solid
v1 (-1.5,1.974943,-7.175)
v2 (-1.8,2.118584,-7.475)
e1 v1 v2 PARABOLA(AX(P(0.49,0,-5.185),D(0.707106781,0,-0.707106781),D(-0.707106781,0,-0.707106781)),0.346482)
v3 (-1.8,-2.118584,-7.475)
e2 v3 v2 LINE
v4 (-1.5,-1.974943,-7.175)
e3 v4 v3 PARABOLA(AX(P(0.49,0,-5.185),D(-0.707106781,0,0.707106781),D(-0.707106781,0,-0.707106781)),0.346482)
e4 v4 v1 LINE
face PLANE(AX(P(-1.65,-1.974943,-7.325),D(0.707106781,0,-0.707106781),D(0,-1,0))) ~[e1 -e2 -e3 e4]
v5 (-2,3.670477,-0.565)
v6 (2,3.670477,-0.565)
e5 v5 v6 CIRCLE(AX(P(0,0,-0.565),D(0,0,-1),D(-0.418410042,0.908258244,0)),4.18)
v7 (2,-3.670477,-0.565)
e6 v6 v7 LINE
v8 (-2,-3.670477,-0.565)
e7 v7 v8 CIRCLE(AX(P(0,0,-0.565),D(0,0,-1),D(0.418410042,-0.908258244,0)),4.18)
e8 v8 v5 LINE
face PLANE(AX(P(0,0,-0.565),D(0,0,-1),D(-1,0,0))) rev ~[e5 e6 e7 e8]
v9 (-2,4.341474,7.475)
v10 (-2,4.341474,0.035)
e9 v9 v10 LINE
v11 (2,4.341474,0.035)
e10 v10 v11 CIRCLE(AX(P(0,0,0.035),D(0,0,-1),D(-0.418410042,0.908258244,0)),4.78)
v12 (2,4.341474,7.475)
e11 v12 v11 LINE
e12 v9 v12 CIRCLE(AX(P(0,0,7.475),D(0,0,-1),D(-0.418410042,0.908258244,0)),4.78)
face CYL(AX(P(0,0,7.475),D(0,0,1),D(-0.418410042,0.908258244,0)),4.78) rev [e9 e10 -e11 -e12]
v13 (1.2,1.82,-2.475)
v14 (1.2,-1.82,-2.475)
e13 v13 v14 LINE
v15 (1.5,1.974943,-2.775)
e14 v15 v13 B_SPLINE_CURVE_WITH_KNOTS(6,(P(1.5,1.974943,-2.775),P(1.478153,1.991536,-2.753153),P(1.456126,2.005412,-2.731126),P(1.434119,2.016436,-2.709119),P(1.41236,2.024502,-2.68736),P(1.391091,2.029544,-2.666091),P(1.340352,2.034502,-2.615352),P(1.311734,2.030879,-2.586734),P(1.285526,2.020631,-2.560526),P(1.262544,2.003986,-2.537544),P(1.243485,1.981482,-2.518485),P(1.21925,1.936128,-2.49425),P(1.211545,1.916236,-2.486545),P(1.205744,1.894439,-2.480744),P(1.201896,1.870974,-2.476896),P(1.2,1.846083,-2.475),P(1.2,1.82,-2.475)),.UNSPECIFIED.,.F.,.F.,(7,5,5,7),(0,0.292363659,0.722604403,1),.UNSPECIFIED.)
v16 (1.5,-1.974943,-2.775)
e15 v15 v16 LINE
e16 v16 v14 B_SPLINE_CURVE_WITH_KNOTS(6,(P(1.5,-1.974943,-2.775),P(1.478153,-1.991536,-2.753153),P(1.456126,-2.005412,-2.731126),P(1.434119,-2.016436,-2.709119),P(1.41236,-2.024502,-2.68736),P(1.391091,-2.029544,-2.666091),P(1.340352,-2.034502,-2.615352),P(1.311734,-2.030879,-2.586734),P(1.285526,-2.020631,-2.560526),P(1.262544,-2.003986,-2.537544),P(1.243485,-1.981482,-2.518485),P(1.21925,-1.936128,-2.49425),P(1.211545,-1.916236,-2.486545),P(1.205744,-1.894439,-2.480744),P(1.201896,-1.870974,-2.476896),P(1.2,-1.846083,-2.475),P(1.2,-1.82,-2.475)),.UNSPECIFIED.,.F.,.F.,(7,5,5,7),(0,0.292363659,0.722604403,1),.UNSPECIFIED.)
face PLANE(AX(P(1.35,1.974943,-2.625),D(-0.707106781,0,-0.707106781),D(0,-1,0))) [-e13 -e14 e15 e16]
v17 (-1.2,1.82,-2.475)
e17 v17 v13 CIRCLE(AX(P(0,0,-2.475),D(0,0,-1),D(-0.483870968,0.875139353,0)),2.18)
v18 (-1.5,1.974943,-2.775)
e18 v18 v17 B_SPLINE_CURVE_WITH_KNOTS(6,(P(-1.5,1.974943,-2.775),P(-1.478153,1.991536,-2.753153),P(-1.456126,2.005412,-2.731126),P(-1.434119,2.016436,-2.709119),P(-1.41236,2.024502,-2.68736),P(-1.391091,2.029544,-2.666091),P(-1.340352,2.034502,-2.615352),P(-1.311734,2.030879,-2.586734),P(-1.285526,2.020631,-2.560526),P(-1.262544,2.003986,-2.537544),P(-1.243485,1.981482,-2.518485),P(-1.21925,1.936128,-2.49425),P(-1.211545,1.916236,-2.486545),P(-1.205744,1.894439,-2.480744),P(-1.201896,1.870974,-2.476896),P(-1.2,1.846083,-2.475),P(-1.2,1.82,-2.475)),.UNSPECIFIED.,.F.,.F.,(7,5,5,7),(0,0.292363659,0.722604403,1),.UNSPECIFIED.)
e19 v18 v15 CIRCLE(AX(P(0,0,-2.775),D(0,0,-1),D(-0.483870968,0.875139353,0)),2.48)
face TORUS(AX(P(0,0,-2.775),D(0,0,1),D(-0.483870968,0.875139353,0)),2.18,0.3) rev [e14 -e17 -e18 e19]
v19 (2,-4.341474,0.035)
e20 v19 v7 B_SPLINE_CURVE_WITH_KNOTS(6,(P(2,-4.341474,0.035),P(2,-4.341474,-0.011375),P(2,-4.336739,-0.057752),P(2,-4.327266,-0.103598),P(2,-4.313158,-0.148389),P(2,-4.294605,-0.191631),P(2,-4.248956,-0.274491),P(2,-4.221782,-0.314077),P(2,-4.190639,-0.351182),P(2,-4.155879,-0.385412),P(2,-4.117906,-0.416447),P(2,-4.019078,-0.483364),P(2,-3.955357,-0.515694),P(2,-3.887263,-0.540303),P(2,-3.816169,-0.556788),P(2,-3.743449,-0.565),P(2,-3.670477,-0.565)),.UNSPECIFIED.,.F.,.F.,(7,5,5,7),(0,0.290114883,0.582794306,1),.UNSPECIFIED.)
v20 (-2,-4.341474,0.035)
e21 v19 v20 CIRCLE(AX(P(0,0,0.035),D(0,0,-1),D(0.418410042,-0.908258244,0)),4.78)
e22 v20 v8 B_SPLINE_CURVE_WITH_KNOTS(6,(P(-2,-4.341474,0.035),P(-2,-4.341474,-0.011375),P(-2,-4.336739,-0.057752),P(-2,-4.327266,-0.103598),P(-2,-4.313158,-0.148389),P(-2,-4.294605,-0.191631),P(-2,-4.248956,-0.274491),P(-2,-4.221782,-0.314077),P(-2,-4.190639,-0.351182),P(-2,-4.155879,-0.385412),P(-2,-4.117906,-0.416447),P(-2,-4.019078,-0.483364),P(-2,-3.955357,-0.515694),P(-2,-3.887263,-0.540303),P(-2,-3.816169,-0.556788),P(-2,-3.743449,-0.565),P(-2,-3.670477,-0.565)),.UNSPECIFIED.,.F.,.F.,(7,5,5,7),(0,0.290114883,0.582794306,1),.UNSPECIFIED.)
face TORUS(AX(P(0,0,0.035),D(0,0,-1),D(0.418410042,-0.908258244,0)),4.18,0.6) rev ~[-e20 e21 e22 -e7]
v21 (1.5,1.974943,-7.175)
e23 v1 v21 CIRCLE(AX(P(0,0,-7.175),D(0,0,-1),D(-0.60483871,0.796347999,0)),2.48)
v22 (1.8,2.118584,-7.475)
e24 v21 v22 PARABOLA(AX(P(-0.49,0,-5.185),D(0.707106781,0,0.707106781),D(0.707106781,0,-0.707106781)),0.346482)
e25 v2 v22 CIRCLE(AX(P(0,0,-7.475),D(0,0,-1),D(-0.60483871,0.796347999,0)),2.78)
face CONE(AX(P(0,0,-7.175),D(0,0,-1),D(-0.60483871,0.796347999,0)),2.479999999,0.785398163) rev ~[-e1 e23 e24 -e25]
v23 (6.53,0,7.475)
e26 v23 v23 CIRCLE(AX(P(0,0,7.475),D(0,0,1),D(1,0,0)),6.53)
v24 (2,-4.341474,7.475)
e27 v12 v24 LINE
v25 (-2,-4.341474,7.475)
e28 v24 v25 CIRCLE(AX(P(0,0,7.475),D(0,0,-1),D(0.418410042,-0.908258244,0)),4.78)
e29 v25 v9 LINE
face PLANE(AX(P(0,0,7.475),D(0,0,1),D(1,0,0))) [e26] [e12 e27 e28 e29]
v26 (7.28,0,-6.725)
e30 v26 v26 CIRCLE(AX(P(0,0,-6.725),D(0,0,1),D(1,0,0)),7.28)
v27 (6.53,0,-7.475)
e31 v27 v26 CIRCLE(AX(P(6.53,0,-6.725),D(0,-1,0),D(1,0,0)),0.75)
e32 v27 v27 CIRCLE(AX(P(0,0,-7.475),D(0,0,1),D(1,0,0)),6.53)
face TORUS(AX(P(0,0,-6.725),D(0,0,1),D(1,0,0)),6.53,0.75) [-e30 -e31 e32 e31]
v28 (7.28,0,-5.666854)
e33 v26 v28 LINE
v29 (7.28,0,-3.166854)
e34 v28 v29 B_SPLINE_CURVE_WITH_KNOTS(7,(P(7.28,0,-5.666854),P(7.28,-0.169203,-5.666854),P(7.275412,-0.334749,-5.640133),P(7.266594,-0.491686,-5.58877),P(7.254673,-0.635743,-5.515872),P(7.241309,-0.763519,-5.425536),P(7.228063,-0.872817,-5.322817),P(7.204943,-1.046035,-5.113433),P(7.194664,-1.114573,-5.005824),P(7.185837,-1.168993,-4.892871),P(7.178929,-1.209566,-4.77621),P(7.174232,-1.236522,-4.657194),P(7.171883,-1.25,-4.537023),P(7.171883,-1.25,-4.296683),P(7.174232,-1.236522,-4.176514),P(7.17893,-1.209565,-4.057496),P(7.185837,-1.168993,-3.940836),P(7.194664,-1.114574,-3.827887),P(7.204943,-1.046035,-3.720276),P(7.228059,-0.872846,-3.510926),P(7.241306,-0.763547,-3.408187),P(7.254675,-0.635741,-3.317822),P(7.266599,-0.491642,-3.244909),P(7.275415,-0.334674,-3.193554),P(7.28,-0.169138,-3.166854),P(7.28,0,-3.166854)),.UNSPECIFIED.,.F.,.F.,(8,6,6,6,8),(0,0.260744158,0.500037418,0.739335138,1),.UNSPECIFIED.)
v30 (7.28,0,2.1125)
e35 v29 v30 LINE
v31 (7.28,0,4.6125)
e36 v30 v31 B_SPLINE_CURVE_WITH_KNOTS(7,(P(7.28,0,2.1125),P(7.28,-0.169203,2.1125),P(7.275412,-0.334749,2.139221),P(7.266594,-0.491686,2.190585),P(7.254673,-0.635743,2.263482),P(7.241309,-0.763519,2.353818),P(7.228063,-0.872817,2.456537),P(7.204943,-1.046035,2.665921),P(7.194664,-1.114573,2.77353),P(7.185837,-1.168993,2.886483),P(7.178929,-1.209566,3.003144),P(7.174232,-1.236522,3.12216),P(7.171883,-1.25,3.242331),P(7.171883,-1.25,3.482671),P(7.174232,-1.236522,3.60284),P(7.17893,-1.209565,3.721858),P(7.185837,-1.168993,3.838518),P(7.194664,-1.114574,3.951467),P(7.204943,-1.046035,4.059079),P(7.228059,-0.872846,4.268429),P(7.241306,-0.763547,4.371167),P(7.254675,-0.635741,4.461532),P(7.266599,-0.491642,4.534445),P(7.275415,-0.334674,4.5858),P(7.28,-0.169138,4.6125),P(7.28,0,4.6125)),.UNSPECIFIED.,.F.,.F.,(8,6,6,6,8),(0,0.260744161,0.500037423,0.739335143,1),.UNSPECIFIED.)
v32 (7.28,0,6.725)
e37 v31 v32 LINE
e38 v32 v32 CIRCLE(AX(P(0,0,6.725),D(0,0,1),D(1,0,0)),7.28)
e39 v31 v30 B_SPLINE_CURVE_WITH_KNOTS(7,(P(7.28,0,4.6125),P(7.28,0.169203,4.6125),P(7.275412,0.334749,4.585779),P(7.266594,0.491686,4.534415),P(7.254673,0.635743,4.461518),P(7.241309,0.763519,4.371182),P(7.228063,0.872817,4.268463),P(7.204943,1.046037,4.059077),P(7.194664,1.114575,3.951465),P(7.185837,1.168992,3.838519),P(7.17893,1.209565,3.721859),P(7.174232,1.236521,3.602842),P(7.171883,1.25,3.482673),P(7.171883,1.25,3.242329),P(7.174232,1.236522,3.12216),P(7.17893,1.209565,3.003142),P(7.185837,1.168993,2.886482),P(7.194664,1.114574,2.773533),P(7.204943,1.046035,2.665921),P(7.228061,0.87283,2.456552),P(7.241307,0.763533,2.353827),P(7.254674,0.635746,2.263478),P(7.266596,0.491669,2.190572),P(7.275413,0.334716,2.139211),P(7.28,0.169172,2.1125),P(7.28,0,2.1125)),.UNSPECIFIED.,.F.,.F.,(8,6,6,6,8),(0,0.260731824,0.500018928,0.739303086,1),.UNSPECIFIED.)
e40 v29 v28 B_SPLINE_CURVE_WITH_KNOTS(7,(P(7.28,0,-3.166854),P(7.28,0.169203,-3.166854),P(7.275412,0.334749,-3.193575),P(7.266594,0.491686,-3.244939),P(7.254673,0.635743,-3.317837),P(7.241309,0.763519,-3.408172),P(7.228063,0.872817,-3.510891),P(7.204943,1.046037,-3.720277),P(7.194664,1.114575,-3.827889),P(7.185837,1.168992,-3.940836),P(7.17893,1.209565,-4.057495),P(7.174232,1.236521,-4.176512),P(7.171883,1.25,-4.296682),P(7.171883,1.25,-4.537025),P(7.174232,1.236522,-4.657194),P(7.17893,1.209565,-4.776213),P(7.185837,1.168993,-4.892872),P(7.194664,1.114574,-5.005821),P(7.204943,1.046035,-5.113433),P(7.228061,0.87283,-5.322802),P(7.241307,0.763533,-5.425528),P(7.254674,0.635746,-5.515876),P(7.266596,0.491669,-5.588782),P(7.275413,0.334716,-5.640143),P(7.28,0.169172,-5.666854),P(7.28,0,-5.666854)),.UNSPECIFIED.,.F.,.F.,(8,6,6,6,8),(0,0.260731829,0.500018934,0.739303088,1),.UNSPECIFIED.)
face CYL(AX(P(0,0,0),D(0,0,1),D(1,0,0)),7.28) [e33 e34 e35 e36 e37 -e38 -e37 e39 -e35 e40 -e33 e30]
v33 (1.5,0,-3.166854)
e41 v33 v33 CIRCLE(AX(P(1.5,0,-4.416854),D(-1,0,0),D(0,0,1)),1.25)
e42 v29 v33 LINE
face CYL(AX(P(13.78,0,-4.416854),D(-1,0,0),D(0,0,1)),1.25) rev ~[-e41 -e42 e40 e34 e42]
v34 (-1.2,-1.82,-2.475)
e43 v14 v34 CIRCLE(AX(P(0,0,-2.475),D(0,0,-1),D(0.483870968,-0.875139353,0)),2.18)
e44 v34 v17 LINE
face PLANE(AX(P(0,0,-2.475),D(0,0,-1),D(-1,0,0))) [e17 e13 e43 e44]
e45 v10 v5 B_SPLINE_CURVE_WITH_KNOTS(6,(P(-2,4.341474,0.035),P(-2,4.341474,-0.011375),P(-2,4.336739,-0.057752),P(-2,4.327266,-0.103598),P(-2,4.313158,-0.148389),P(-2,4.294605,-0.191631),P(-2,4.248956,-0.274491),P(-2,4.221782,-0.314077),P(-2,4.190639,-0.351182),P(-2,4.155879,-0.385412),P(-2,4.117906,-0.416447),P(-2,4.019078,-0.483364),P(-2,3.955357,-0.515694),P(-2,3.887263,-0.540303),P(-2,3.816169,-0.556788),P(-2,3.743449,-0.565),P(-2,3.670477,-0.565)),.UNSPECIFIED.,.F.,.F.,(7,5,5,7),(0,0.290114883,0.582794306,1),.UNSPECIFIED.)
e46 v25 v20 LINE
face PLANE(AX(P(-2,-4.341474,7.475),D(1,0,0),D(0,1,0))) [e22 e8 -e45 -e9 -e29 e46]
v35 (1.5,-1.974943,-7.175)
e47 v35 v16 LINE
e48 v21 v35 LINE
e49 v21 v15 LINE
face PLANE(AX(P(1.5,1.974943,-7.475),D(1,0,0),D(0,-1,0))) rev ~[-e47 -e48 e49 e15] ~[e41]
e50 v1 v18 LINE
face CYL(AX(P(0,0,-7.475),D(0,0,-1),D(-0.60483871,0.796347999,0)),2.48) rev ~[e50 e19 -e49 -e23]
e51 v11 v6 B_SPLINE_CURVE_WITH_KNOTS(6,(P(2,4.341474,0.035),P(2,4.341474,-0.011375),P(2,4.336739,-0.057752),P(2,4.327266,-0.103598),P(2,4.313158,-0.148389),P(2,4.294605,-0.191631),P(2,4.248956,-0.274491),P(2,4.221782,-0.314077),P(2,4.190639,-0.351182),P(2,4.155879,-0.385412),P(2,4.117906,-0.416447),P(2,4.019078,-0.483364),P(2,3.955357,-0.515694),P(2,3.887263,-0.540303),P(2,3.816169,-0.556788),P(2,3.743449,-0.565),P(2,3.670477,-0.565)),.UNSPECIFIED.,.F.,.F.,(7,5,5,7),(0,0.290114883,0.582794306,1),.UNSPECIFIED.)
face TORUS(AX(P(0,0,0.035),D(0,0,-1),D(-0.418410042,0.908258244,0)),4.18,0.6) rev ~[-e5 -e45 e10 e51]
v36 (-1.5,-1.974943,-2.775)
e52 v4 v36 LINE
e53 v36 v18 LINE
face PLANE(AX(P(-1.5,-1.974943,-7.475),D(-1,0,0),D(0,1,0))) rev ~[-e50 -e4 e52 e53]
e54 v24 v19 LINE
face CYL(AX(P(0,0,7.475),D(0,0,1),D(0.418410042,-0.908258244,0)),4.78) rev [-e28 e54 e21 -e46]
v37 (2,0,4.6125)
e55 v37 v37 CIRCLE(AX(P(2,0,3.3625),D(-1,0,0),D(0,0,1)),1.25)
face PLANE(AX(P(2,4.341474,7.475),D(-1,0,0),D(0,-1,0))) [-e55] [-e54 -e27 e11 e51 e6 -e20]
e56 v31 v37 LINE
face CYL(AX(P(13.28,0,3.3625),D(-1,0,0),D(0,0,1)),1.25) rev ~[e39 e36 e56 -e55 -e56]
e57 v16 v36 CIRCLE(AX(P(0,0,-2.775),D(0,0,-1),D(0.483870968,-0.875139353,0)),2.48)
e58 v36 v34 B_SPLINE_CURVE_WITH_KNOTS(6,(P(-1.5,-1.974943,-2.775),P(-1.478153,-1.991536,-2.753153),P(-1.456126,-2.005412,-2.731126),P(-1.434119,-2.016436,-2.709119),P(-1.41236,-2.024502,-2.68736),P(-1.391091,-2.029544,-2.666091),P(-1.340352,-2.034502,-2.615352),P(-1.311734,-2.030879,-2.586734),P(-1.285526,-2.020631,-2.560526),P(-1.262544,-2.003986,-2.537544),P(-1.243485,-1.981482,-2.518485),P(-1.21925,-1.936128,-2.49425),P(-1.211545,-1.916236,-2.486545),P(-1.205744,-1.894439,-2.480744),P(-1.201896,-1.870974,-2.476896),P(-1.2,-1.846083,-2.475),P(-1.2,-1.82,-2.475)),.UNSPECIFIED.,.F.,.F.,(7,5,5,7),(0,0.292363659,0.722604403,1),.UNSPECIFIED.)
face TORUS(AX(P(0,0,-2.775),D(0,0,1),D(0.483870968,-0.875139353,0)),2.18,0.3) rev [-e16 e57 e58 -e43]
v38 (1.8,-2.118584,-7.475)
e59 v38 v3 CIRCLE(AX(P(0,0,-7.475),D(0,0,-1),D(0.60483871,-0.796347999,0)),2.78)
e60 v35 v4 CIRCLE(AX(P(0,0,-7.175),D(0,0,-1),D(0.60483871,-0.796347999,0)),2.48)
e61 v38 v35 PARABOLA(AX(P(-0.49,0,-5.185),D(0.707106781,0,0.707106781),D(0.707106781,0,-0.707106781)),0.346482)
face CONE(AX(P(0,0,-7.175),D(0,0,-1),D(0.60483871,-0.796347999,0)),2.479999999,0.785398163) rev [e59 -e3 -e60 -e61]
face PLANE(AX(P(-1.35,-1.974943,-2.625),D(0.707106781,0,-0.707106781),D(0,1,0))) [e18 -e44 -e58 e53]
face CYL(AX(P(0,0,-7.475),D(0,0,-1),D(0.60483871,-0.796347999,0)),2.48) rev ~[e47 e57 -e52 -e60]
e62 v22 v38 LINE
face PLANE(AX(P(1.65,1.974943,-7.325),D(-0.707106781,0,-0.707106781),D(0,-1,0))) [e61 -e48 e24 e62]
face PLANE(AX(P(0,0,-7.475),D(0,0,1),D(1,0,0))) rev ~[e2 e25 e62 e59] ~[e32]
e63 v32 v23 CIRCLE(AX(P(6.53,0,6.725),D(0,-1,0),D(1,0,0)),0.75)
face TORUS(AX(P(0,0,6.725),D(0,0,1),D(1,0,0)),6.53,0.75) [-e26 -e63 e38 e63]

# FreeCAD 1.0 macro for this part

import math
import FreeCAD as App
import Part
import Sketcher

V = App.Vector


def edges_at(feature, points):
    """Names of the edges that pass closest to the given points."""
    edges = feature.Shape.Edges
    near = lambda p: min(range(len(edges)), key=lambda i: edges[i].distToShape(Part.Vertex(*p))[0])
    return sorted({f"Edge{near(p) + 1}" for p in points})

doc = App.newDocument("Part")
body = doc.addObject("PartDesign::Body", "Body")

# Sketch on XY plane
sketch1 = body.newObject("Sketcher::SketchObject", "Sketch")
sketch1.AttachmentSupport = (doc.getObject("XY_Plane"), [""])
sketch1.MapMode = "FlatFace"
sketch1.addGeometry(Part.Circle(V(0, 0, 0), V(0, 0, 1), 7), False)
sketch1.addConstraint(Sketcher.Constraint("Coincident", 0, 3, -1, 1))
sketch1.addConstraint(Sketcher.Constraint("Diameter", 0, 14.56))
pad1 = body.newObject("PartDesign::Pad", "Pad")
pad1.Profile = sketch1
pad1.Length = 14.95
pad1.Midplane = True

# Sketch on XY plane
sketch2 = body.newObject("Sketcher::SketchObject", "Sketch001")
sketch2.AttachmentSupport = (doc.getObject("XY_Plane"), [""])
sketch2.MapMode = "FlatFace"
sketch2.AttachmentOffset = App.Placement(V(0, 0, 7.475), App.Rotation())
sketch2.addGeometry(Part.LineSegment(V(2, -4.3, 0), V(2, 4.3, 0)), False)
sketch2.addGeometry(Part.ArcOfCircle(Part.Circle(V(0, 0, 0), V(0, 0, 1), 4.8), math.radians(65), math.radians(115)), False)
sketch2.addGeometry(Part.LineSegment(V(-2, 4.3, 0), V(-2, -4.3, 0)), False)
sketch2.addGeometry(Part.ArcOfCircle(Part.Circle(V(0, 0, 0), V(0, 0, 1), 4.8), math.radians(-115), math.radians(-65)), False)
sketch2.addConstraint(Sketcher.Constraint("Coincident", 0, 2, 1, 1))
sketch2.addConstraint(Sketcher.Constraint("Coincident", 1, 2, 2, 1))
sketch2.addConstraint(Sketcher.Constraint("Coincident", 2, 2, 3, 1))
sketch2.addConstraint(Sketcher.Constraint("Coincident", 3, 2, 0, 1))
sketch2.addConstraint(Sketcher.Constraint("Vertical", 0))
sketch2.addConstraint(Sketcher.Constraint("Vertical", 2))
sketch2.addConstraint(Sketcher.Constraint("Coincident", 1, 3, -1, 1))
sketch2.addConstraint(Sketcher.Constraint("Coincident", 3, 3, -1, 1))
sketch2.addConstraint(Sketcher.Constraint("Equal", 1, 3))
sketch2.addConstraint(Sketcher.Constraint("Horizontal", 0, 2, 1, 2))
sketch2.addConstraint(Sketcher.Constraint("Radius", 1, 4.78))
sketch2.addConstraint(Sketcher.Constraint("DistanceX", -1, 1, 0, 2, 2.0))
pocket1 = body.newObject("PartDesign::Pocket", "Pocket")
pocket1.Profile = sketch2
pocket1.Length = 8.04

# Sketch on XY plane
sketch3 = body.newObject("Sketcher::SketchObject", "Sketch002")
sketch3.AttachmentSupport = (doc.getObject("XY_Plane"), [""])
sketch3.MapMode = "FlatFace"
sketch3.AttachmentOffset = App.Placement(V(0, 0, -7.475), App.Rotation())
sketch3.addGeometry(Part.LineSegment(V(1.5, 2, 0), V(1.5, -2, 0)), False)
sketch3.addGeometry(Part.ArcOfCircle(Part.Circle(V(0, 0, 0), V(0, 0, 1), 2.5), math.radians(-127), math.radians(-53)), False)
sketch3.addGeometry(Part.LineSegment(V(-1.5, -2, 0), V(-1.5, 2, 0)), False)
sketch3.addGeometry(Part.ArcOfCircle(Part.Circle(V(0, 0, 0), V(0, 0, 1), 2.5), math.radians(53), math.radians(127)), False)
sketch3.addConstraint(Sketcher.Constraint("Coincident", 0, 2, 1, 2))
sketch3.addConstraint(Sketcher.Constraint("Coincident", 1, 1, 2, 1))
sketch3.addConstraint(Sketcher.Constraint("Coincident", 2, 2, 3, 2))
sketch3.addConstraint(Sketcher.Constraint("Coincident", 3, 1, 0, 1))
sketch3.addConstraint(Sketcher.Constraint("Vertical", 0))
sketch3.addConstraint(Sketcher.Constraint("Vertical", 2))
sketch3.addConstraint(Sketcher.Constraint("Coincident", 1, 3, -1, 1))
sketch3.addConstraint(Sketcher.Constraint("Coincident", 3, 3, -1, 1))
sketch3.addConstraint(Sketcher.Constraint("Equal", 1, 3))
sketch3.addConstraint(Sketcher.Constraint("Horizontal", 0, 2, 1, 1))
sketch3.addConstraint(Sketcher.Constraint("Radius", 1, 2.48))
sketch3.addConstraint(Sketcher.Constraint("DistanceX", 1, 1, 0, 2, 3.0))
pocket2 = body.newObject("PartDesign::Pocket", "Pocket001")
pocket2.Profile = sketch3
pocket2.Length = 5
pocket2.Reversed = True
doc.recompute()

chamfer = body.newObject("PartDesign::Chamfer", "Chamfer")
chamfer.Base = (pocket2, edges_at(pocket2, [(1.5, 0, -2.475), (-1.5, 0, -2.475)]))
chamfer.Size = 0.3
doc.recompute()

chamfer2 = body.newObject("PartDesign::Chamfer", "Chamfer001")
chamfer2.Base = (chamfer, edges_at(chamfer, [
    (0, 2.48, -7.475),
    (-1.5, 0, -7.475),
    (0, -2.48, -7.475),
    (1.5, 0, -7.475),
]))
chamfer2.Size = 0.3
doc.recompute()

fillet = body.newObject("PartDesign::Fillet", "Fillet")
fillet.Base = (chamfer2, edges_at(chamfer2, [(-7.28, 0, -7.475), (-7.28, 0, 7.475)]))
fillet.Radius = 0.75
doc.recompute()

fillet2 = body.newObject("PartDesign::Fillet", "Fillet001")
fillet2.Base = (fillet, edges_at(fillet, [(0, -4.78, -0.565), (0, 4.78, -0.565)]))
fillet2.Radius = 0.6
doc.recompute()

fillet3 = body.newObject("PartDesign::Fillet", "Fillet002")
fillet3.Base = (fillet2, edges_at(fillet2, [(0, 2.48, -2.475), (0, -2.48, -2.475)]))
fillet3.Radius = 0.3

# Sketch on YZ plane
sketch4 = body.newObject("Sketcher::SketchObject", "Sketch003")
sketch4.AttachmentSupport = (doc.getObject("YZ_Plane"), [""])
sketch4.MapMode = "FlatFace"
sketch4.AttachmentOffset = App.Placement(V(0, 0, 7.28), App.Rotation())
sketch4.addGeometry(Part.Circle(V(0, 3.4, 0), V(0, 0, 1), 1.2), False)
sketch4.addConstraint(Sketcher.Constraint("PointOnObject", 0, 3, -2))
sketch4.addConstraint(Sketcher.Constraint("Diameter", 0, 2.5))
sketch4.addConstraint(Sketcher.Constraint("DistanceY", -1, 1, 0, 3, 3.3625))
doc.recompute()
hole = body.newObject("PartDesign::Hole", "Hole")
hole.Profile = sketch4
hole.ThreadType = "None"
hole.Diameter = 2.5
hole.DepthType = "Dimension"
hole.Depth = 6
hole.DrillPoint = "Angled"
hole.DrillPointAngle = 118

# Sketch on YZ plane
sketch5 = body.newObject("Sketcher::SketchObject", "Sketch004")
sketch5.AttachmentSupport = (doc.getObject("YZ_Plane"), [""])
sketch5.MapMode = "FlatFace"
sketch5.AttachmentOffset = App.Placement(V(0, 0, 7.28), App.Rotation())
sketch5.addGeometry(Part.Circle(V(0, -4.4, 0), V(0, 0, 1), 1.2), False)
sketch5.addConstraint(Sketcher.Constraint("PointOnObject", 0, 3, -2))
sketch5.addConstraint(Sketcher.Constraint("Diameter", 0, 2.5))
sketch5.addConstraint(Sketcher.Constraint("DistanceY", 0, 3, -1, 1, 4.416854))
doc.recompute()
hole2 = body.newObject("PartDesign::Hole", "Hole001")
hole2.Profile = sketch5
hole2.ThreadType = "None"
hole2.Diameter = 2.5
hole2.DepthType = "Dimension"
hole2.Depth = 6.5
hole2.DrillPoint = "Angled"
hole2.DrillPointAngle = 118

doc.recompute()
